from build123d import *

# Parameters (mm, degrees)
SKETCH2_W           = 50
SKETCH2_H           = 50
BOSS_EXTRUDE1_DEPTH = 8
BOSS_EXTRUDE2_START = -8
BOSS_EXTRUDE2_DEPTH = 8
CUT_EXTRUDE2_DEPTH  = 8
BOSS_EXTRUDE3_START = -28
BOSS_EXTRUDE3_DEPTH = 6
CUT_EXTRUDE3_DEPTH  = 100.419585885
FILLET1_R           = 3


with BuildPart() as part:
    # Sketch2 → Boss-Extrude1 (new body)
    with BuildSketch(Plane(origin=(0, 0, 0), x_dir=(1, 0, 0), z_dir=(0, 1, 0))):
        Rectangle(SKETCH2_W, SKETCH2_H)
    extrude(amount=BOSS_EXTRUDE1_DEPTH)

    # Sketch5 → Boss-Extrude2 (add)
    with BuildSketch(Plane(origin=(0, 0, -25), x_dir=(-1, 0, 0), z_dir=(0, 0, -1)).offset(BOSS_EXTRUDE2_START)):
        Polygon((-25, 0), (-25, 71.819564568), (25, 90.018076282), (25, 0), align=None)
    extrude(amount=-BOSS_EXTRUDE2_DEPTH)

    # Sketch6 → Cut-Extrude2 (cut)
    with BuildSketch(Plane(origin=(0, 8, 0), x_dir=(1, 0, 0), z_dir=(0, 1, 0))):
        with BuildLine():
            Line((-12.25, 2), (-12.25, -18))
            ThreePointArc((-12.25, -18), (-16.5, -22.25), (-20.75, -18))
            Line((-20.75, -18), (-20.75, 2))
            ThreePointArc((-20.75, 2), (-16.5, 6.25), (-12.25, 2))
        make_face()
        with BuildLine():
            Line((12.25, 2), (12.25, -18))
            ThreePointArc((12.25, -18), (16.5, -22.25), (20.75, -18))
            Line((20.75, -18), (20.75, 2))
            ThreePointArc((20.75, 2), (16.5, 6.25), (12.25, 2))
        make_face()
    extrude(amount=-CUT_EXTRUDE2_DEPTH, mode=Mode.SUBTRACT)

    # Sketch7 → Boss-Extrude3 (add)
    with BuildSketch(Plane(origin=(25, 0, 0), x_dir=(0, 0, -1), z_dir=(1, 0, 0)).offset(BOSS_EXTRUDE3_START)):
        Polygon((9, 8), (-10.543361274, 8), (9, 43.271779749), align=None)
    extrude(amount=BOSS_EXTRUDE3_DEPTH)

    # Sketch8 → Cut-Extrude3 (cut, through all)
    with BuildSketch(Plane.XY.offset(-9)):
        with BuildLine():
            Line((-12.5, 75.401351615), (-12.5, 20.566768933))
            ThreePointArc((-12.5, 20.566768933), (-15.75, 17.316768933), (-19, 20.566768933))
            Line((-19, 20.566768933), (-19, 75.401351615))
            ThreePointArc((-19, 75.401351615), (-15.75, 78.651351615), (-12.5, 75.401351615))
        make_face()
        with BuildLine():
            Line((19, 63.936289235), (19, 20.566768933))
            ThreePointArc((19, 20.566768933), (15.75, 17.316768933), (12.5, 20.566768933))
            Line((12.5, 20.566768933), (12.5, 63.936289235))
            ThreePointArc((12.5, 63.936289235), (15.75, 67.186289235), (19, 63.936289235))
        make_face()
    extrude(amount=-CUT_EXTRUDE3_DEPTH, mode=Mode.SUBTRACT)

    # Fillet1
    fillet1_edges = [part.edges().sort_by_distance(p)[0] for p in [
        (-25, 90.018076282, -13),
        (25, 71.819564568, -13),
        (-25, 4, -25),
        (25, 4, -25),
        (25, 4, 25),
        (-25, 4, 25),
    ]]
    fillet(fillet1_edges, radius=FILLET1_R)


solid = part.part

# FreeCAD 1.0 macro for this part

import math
import FreeCAD as App
import Part
import Sketcher
from FreeCAD import Vector
Q = App.Units.Quantity


def edges_at(feature, points):
    """Names of the edges that pass closest to the given points."""
    edges = feature.Shape.Edges
    near = lambda p: min(range(len(edges)), key=lambda i: edges[i].distToShape(Part.Vertex(*p))[0])
    return sorted({f"Edge{near(p) + 1}" for p in points})

doc = App.newDocument("Part")
body = doc.addObject("PartDesign::Body", "Body")

# Sketch on XZ plane
sketch1 = body.newObject("Sketcher::SketchObject", "Sketch")
sketch1.AttachmentSupport = (doc.getObject("XZ_Plane"), [""])
sketch1.MapMode = "FlatFace"
sketch1.addGeometry([
    Part.LineSegment(Vector(-25, -25, 0), Vector(-25, 25, 0)),
    Part.LineSegment(Vector(-25, 25, 0), Vector(25, 25, 0)),
    Part.LineSegment(Vector(25, 25, 0), Vector(25, -25, 0)),
    Part.LineSegment(Vector(25, -25, 0), Vector(-25, -25, 0)),
], False)
sketch1.addConstraint([
    Sketcher.Constraint("Coincident", 0, 2, 1, 1),
    Sketcher.Constraint("Coincident", 1, 2, 2, 1),
    Sketcher.Constraint("Coincident", 2, 2, 3, 1),
    Sketcher.Constraint("Coincident", 3, 2, 0, 1),
    Sketcher.Constraint("Vertical", 0),
    Sketcher.Constraint("Horizontal", 1),
    Sketcher.Constraint("Vertical", 2),
    Sketcher.Constraint("Horizontal", 3),
    Sketcher.Constraint("Symmetric", 0, 2, 2, 2, -1, 1),
    Sketcher.Constraint("Equal", 3, 0),
    Sketcher.Constraint("DistanceX", 1, 1, 1, 2, Q("50 mm")),
])
pad1 = body.newObject("PartDesign::Pad", "Pad")
pad1.Profile = sketch1
pad1.Length = 8
pad1.Reversed = True

# Sketch on XY plane
sketch2 = body.newObject("Sketcher::SketchObject", "Sketch001")
sketch2.AttachmentSupport = (doc.getObject("XY_Plane"), [""])
sketch2.MapMode = "FlatFace"
sketch2.AttachmentOffset = App.Placement(Vector(0, 0, -17), App.Rotation())
sketch2.addGeometry([
    Part.LineSegment(Vector(25, 71.819565, 0), Vector(25, 0, 0)),
    Part.LineSegment(Vector(25, 0, 0), Vector(-25, 0, 0)),
    Part.LineSegment(Vector(-25, 0, 0), Vector(-25, 90.018076, 0)),
    Part.LineSegment(Vector(-25, 90.018076, 0), Vector(25, 71.819565, 0)),
], False)
sketch2.addConstraint([
    Sketcher.Constraint("Coincident", 0, 2, 1, 1),
    Sketcher.Constraint("Coincident", 1, 2, 2, 1),
    Sketcher.Constraint("Coincident", 2, 2, 3, 1),
    Sketcher.Constraint("Coincident", 3, 2, 0, 1),
    Sketcher.Constraint("Vertical", 0),
    Sketcher.Constraint("Horizontal", 1),
    Sketcher.Constraint("Vertical", 2),
    Sketcher.Constraint("Symmetric", 0, 2, 1, 2, -1, 1),
    Sketcher.Constraint("DistanceX", 1, 2, 1, 1, Q("50 mm")),
    Sketcher.Constraint("Angle", 3, Q("-20 deg")),
    Sketcher.Constraint("DistanceY", 0, 2, 0, 1, Q("71.819565 mm")),
])
pad2 = body.newObject("PartDesign::Pad", "Pad001")
pad2.Profile = sketch2
pad2.Length = 8

# Sketch on XZ plane
sketch3 = body.newObject("Sketcher::SketchObject", "Sketch002")
sketch3.AttachmentSupport = (doc.getObject("XZ_Plane"), [""])
sketch3.MapMode = "FlatFace"
sketch3.AttachmentOffset = App.Placement(Vector(0, 0, -8), App.Rotation())
sketch3.addGeometry([
    Part.LineSegment(Vector(-12.25, 18, 0), Vector(-12.25, -2, 0)),  # 0
    Part.ArcOfCircle(Part.Circle(Vector(-16.5, -2, 0), Vector(0, 0, 1), 4.25), math.radians(180), math.radians(360)),  # 1
    Part.LineSegment(Vector(-20.75, -2, 0), Vector(-20.75, 18, 0)),  # 2
    Part.ArcOfCircle(Part.Circle(Vector(-16.5, 18, 0), Vector(0, 0, 1), 4.25), math.radians(0), math.radians(180)),  # 3
    Part.LineSegment(Vector(12.25, -2, 0), Vector(12.25, 18, 0)),  # 4
    Part.ArcOfCircle(Part.Circle(Vector(16.5, 18, 0), Vector(0, 0, 1), 4.25), math.radians(0), math.radians(180)),  # 5
    Part.LineSegment(Vector(20.75, 18, 0), Vector(20.75, -2, 0)),  # 6
    Part.ArcOfCircle(Part.Circle(Vector(16.5, -2, 0), Vector(0, 0, 1), 4.25), math.radians(180), math.radians(360)),  # 7
], False)
sketch3.addConstraint([
    Sketcher.Constraint("Tangent", 0, 2, 1, 2),
    Sketcher.Constraint("Tangent", 1, 1, 2, 1),
    Sketcher.Constraint("Tangent", 2, 2, 3, 2),
    Sketcher.Constraint("Tangent", 3, 1, 0, 1),
    Sketcher.Constraint("Tangent", 4, 2, 5, 2),
    Sketcher.Constraint("Tangent", 5, 1, 6, 1),
    Sketcher.Constraint("Tangent", 6, 2, 7, 2),
    Sketcher.Constraint("Tangent", 7, 1, 4, 1),
    Sketcher.Constraint("Vertical", 0),
    Sketcher.Constraint("Vertical", 2),
    Sketcher.Constraint("Vertical", 4),
    Sketcher.Constraint("Vertical", 6),
    Sketcher.Constraint("Equal", 3, 5),
    Sketcher.Constraint("Symmetric", 3, 3, 5, 3, -2),
    Sketcher.Constraint("Horizontal", 1, 3, 7, 3),
    Sketcher.Constraint("DistanceY", 0, 2, 0, 1, Q("20 mm")),
    Sketcher.Constraint("Radius", 1, Q("4.25 mm")),
    Sketcher.Constraint("DistanceY", 1, 3, -1, 1, Q("2 mm")),
    Sketcher.Constraint("DistanceX", 3, 3, 5, 3, Q("33 mm")),
])
pocket1 = body.newObject("PartDesign::Pocket", "Pocket")
pocket1.Profile = sketch3
pocket1.Length = 8
pocket1.Reversed = True

# Sketch on YZ plane
sketch4 = body.newObject("Sketcher::SketchObject", "Sketch003")
sketch4.AttachmentSupport = (doc.getObject("YZ_Plane"), [""])
sketch4.MapMode = "FlatFace"
sketch4.AttachmentOffset = App.Placement(Vector(0, 0, -3), App.Rotation())
sketch4.addGeometry([
    Part.LineSegment(Vector(8, 10.543361, 0), Vector(8, -9, 0)),
    Part.LineSegment(Vector(8, -9, 0), Vector(43.27178, -9, 0)),
    Part.LineSegment(Vector(43.27178, -9, 0), Vector(8, 10.543361, 0)),
], False)
sketch4.addConstraint([
    Sketcher.Constraint("Coincident", 0, 2, 1, 1),
    Sketcher.Constraint("Coincident", 1, 2, 2, 1),
    Sketcher.Constraint("Coincident", 2, 2, 0, 1),
    Sketcher.Constraint("Vertical", 0),
    Sketcher.Constraint("Horizontal", 1),
    Sketcher.Constraint("DistanceX", -1, 1, 0, 2, Q("8 mm")),
    Sketcher.Constraint("DistanceY", 0, 2, -1, 1, Q("9 mm")),
    Sketcher.Constraint("DistanceX", 1, 1, 1, 2, Q("35.27178 mm")),
    Sketcher.Constraint("DistanceY", 0, 2, 0, 1, Q("19.543361 mm")),
])
pad3 = body.newObject("PartDesign::Pad", "Pad002")
pad3.Profile = sketch4
pad3.Length = 6

# Sketch on XY plane
sketch5 = body.newObject("Sketcher::SketchObject", "Sketch004")
sketch5.AttachmentSupport = (doc.getObject("XY_Plane"), [""])
sketch5.MapMode = "FlatFace"
sketch5.AttachmentOffset = App.Placement(Vector(0, 0, -9), App.Rotation())
sketch5.addGeometry([
    Part.LineSegment(Vector(-12.5, 20.566769, 0), Vector(-12.5, 75.401352, 0)),  # 0
    Part.ArcOfCircle(Part.Circle(Vector(-15.75, 75.401352, 0), Vector(0, 0, 1), 3.25), math.radians(0), math.radians(180)),  # 1
    Part.LineSegment(Vector(-19, 75.401352, 0), Vector(-19, 20.566769, 0)),  # 2
    Part.ArcOfCircle(Part.Circle(Vector(-15.75, 20.566769, 0), Vector(0, 0, 1), 3.25), math.radians(180), math.radians(360)),  # 3
    Part.LineSegment(Vector(19, 20.566769, 0), Vector(19, 63.936289, 0)),  # 4
    Part.ArcOfCircle(Part.Circle(Vector(15.75, 63.936289, 0), Vector(0, 0, 1), 3.25), math.radians(0), math.radians(180)),  # 5
    Part.LineSegment(Vector(12.5, 63.936289, 0), Vector(12.5, 20.566769, 0)),  # 6
    Part.ArcOfCircle(Part.Circle(Vector(15.75, 20.566769, 0), Vector(0, 0, 1), 3.25), math.radians(180), math.radians(360)),  # 7
], False)
sketch5.addConstraint([
    Sketcher.Constraint("Tangent", 0, 2, 1, 1),
    Sketcher.Constraint("Tangent", 1, 2, 2, 1),
    Sketcher.Constraint("Tangent", 2, 2, 3, 1),
    Sketcher.Constraint("Tangent", 3, 2, 0, 1),
    Sketcher.Constraint("Tangent", 4, 2, 5, 1),
    Sketcher.Constraint("Tangent", 5, 2, 6, 1),
    Sketcher.Constraint("Tangent", 6, 2, 7, 1),
    Sketcher.Constraint("Tangent", 7, 2, 4, 1),
    Sketcher.Constraint("Vertical", 0),
    Sketcher.Constraint("Vertical", 2),
    Sketcher.Constraint("Vertical", 4),
    Sketcher.Constraint("Vertical", 6),
    Sketcher.Constraint("Equal", 3, 5),
    Sketcher.Constraint("Symmetric", 3, 3, 7, 3, -2),
    Sketcher.Constraint("Radius", 1, Q("3.25 mm")),
    Sketcher.Constraint("DistanceX", 1, 2, -1, 1, Q("19 mm")),
    Sketcher.Constraint("DistanceY", 4, 1, 4, 2, Q("43.36952 mm")),
    Sketcher.Constraint("DistanceY", 0, 1, 0, 2, Q("54.834583 mm")),
    Sketcher.Constraint("DistanceY", -1, 1, 1, 3, Q("75.401352 mm")),
])
pocket2 = body.newObject("PartDesign::Pocket", "Pocket001")
pocket2.Profile = sketch5
pocket2.Type = "ThroughAll"
doc.recompute()

fillet = body.newObject("PartDesign::Fillet", "Fillet")
fillet.Base = (pocket2, edges_at(pocket2, [
    (-25, 90.018, -13),
    (25, 71.82, -13),
    (-25, 4, -25),
    (25, 4, -25),
    (25, 4, 25),
    (-25, 4, 25),
]))
fillet.Radius = 3

doc.recompute()
